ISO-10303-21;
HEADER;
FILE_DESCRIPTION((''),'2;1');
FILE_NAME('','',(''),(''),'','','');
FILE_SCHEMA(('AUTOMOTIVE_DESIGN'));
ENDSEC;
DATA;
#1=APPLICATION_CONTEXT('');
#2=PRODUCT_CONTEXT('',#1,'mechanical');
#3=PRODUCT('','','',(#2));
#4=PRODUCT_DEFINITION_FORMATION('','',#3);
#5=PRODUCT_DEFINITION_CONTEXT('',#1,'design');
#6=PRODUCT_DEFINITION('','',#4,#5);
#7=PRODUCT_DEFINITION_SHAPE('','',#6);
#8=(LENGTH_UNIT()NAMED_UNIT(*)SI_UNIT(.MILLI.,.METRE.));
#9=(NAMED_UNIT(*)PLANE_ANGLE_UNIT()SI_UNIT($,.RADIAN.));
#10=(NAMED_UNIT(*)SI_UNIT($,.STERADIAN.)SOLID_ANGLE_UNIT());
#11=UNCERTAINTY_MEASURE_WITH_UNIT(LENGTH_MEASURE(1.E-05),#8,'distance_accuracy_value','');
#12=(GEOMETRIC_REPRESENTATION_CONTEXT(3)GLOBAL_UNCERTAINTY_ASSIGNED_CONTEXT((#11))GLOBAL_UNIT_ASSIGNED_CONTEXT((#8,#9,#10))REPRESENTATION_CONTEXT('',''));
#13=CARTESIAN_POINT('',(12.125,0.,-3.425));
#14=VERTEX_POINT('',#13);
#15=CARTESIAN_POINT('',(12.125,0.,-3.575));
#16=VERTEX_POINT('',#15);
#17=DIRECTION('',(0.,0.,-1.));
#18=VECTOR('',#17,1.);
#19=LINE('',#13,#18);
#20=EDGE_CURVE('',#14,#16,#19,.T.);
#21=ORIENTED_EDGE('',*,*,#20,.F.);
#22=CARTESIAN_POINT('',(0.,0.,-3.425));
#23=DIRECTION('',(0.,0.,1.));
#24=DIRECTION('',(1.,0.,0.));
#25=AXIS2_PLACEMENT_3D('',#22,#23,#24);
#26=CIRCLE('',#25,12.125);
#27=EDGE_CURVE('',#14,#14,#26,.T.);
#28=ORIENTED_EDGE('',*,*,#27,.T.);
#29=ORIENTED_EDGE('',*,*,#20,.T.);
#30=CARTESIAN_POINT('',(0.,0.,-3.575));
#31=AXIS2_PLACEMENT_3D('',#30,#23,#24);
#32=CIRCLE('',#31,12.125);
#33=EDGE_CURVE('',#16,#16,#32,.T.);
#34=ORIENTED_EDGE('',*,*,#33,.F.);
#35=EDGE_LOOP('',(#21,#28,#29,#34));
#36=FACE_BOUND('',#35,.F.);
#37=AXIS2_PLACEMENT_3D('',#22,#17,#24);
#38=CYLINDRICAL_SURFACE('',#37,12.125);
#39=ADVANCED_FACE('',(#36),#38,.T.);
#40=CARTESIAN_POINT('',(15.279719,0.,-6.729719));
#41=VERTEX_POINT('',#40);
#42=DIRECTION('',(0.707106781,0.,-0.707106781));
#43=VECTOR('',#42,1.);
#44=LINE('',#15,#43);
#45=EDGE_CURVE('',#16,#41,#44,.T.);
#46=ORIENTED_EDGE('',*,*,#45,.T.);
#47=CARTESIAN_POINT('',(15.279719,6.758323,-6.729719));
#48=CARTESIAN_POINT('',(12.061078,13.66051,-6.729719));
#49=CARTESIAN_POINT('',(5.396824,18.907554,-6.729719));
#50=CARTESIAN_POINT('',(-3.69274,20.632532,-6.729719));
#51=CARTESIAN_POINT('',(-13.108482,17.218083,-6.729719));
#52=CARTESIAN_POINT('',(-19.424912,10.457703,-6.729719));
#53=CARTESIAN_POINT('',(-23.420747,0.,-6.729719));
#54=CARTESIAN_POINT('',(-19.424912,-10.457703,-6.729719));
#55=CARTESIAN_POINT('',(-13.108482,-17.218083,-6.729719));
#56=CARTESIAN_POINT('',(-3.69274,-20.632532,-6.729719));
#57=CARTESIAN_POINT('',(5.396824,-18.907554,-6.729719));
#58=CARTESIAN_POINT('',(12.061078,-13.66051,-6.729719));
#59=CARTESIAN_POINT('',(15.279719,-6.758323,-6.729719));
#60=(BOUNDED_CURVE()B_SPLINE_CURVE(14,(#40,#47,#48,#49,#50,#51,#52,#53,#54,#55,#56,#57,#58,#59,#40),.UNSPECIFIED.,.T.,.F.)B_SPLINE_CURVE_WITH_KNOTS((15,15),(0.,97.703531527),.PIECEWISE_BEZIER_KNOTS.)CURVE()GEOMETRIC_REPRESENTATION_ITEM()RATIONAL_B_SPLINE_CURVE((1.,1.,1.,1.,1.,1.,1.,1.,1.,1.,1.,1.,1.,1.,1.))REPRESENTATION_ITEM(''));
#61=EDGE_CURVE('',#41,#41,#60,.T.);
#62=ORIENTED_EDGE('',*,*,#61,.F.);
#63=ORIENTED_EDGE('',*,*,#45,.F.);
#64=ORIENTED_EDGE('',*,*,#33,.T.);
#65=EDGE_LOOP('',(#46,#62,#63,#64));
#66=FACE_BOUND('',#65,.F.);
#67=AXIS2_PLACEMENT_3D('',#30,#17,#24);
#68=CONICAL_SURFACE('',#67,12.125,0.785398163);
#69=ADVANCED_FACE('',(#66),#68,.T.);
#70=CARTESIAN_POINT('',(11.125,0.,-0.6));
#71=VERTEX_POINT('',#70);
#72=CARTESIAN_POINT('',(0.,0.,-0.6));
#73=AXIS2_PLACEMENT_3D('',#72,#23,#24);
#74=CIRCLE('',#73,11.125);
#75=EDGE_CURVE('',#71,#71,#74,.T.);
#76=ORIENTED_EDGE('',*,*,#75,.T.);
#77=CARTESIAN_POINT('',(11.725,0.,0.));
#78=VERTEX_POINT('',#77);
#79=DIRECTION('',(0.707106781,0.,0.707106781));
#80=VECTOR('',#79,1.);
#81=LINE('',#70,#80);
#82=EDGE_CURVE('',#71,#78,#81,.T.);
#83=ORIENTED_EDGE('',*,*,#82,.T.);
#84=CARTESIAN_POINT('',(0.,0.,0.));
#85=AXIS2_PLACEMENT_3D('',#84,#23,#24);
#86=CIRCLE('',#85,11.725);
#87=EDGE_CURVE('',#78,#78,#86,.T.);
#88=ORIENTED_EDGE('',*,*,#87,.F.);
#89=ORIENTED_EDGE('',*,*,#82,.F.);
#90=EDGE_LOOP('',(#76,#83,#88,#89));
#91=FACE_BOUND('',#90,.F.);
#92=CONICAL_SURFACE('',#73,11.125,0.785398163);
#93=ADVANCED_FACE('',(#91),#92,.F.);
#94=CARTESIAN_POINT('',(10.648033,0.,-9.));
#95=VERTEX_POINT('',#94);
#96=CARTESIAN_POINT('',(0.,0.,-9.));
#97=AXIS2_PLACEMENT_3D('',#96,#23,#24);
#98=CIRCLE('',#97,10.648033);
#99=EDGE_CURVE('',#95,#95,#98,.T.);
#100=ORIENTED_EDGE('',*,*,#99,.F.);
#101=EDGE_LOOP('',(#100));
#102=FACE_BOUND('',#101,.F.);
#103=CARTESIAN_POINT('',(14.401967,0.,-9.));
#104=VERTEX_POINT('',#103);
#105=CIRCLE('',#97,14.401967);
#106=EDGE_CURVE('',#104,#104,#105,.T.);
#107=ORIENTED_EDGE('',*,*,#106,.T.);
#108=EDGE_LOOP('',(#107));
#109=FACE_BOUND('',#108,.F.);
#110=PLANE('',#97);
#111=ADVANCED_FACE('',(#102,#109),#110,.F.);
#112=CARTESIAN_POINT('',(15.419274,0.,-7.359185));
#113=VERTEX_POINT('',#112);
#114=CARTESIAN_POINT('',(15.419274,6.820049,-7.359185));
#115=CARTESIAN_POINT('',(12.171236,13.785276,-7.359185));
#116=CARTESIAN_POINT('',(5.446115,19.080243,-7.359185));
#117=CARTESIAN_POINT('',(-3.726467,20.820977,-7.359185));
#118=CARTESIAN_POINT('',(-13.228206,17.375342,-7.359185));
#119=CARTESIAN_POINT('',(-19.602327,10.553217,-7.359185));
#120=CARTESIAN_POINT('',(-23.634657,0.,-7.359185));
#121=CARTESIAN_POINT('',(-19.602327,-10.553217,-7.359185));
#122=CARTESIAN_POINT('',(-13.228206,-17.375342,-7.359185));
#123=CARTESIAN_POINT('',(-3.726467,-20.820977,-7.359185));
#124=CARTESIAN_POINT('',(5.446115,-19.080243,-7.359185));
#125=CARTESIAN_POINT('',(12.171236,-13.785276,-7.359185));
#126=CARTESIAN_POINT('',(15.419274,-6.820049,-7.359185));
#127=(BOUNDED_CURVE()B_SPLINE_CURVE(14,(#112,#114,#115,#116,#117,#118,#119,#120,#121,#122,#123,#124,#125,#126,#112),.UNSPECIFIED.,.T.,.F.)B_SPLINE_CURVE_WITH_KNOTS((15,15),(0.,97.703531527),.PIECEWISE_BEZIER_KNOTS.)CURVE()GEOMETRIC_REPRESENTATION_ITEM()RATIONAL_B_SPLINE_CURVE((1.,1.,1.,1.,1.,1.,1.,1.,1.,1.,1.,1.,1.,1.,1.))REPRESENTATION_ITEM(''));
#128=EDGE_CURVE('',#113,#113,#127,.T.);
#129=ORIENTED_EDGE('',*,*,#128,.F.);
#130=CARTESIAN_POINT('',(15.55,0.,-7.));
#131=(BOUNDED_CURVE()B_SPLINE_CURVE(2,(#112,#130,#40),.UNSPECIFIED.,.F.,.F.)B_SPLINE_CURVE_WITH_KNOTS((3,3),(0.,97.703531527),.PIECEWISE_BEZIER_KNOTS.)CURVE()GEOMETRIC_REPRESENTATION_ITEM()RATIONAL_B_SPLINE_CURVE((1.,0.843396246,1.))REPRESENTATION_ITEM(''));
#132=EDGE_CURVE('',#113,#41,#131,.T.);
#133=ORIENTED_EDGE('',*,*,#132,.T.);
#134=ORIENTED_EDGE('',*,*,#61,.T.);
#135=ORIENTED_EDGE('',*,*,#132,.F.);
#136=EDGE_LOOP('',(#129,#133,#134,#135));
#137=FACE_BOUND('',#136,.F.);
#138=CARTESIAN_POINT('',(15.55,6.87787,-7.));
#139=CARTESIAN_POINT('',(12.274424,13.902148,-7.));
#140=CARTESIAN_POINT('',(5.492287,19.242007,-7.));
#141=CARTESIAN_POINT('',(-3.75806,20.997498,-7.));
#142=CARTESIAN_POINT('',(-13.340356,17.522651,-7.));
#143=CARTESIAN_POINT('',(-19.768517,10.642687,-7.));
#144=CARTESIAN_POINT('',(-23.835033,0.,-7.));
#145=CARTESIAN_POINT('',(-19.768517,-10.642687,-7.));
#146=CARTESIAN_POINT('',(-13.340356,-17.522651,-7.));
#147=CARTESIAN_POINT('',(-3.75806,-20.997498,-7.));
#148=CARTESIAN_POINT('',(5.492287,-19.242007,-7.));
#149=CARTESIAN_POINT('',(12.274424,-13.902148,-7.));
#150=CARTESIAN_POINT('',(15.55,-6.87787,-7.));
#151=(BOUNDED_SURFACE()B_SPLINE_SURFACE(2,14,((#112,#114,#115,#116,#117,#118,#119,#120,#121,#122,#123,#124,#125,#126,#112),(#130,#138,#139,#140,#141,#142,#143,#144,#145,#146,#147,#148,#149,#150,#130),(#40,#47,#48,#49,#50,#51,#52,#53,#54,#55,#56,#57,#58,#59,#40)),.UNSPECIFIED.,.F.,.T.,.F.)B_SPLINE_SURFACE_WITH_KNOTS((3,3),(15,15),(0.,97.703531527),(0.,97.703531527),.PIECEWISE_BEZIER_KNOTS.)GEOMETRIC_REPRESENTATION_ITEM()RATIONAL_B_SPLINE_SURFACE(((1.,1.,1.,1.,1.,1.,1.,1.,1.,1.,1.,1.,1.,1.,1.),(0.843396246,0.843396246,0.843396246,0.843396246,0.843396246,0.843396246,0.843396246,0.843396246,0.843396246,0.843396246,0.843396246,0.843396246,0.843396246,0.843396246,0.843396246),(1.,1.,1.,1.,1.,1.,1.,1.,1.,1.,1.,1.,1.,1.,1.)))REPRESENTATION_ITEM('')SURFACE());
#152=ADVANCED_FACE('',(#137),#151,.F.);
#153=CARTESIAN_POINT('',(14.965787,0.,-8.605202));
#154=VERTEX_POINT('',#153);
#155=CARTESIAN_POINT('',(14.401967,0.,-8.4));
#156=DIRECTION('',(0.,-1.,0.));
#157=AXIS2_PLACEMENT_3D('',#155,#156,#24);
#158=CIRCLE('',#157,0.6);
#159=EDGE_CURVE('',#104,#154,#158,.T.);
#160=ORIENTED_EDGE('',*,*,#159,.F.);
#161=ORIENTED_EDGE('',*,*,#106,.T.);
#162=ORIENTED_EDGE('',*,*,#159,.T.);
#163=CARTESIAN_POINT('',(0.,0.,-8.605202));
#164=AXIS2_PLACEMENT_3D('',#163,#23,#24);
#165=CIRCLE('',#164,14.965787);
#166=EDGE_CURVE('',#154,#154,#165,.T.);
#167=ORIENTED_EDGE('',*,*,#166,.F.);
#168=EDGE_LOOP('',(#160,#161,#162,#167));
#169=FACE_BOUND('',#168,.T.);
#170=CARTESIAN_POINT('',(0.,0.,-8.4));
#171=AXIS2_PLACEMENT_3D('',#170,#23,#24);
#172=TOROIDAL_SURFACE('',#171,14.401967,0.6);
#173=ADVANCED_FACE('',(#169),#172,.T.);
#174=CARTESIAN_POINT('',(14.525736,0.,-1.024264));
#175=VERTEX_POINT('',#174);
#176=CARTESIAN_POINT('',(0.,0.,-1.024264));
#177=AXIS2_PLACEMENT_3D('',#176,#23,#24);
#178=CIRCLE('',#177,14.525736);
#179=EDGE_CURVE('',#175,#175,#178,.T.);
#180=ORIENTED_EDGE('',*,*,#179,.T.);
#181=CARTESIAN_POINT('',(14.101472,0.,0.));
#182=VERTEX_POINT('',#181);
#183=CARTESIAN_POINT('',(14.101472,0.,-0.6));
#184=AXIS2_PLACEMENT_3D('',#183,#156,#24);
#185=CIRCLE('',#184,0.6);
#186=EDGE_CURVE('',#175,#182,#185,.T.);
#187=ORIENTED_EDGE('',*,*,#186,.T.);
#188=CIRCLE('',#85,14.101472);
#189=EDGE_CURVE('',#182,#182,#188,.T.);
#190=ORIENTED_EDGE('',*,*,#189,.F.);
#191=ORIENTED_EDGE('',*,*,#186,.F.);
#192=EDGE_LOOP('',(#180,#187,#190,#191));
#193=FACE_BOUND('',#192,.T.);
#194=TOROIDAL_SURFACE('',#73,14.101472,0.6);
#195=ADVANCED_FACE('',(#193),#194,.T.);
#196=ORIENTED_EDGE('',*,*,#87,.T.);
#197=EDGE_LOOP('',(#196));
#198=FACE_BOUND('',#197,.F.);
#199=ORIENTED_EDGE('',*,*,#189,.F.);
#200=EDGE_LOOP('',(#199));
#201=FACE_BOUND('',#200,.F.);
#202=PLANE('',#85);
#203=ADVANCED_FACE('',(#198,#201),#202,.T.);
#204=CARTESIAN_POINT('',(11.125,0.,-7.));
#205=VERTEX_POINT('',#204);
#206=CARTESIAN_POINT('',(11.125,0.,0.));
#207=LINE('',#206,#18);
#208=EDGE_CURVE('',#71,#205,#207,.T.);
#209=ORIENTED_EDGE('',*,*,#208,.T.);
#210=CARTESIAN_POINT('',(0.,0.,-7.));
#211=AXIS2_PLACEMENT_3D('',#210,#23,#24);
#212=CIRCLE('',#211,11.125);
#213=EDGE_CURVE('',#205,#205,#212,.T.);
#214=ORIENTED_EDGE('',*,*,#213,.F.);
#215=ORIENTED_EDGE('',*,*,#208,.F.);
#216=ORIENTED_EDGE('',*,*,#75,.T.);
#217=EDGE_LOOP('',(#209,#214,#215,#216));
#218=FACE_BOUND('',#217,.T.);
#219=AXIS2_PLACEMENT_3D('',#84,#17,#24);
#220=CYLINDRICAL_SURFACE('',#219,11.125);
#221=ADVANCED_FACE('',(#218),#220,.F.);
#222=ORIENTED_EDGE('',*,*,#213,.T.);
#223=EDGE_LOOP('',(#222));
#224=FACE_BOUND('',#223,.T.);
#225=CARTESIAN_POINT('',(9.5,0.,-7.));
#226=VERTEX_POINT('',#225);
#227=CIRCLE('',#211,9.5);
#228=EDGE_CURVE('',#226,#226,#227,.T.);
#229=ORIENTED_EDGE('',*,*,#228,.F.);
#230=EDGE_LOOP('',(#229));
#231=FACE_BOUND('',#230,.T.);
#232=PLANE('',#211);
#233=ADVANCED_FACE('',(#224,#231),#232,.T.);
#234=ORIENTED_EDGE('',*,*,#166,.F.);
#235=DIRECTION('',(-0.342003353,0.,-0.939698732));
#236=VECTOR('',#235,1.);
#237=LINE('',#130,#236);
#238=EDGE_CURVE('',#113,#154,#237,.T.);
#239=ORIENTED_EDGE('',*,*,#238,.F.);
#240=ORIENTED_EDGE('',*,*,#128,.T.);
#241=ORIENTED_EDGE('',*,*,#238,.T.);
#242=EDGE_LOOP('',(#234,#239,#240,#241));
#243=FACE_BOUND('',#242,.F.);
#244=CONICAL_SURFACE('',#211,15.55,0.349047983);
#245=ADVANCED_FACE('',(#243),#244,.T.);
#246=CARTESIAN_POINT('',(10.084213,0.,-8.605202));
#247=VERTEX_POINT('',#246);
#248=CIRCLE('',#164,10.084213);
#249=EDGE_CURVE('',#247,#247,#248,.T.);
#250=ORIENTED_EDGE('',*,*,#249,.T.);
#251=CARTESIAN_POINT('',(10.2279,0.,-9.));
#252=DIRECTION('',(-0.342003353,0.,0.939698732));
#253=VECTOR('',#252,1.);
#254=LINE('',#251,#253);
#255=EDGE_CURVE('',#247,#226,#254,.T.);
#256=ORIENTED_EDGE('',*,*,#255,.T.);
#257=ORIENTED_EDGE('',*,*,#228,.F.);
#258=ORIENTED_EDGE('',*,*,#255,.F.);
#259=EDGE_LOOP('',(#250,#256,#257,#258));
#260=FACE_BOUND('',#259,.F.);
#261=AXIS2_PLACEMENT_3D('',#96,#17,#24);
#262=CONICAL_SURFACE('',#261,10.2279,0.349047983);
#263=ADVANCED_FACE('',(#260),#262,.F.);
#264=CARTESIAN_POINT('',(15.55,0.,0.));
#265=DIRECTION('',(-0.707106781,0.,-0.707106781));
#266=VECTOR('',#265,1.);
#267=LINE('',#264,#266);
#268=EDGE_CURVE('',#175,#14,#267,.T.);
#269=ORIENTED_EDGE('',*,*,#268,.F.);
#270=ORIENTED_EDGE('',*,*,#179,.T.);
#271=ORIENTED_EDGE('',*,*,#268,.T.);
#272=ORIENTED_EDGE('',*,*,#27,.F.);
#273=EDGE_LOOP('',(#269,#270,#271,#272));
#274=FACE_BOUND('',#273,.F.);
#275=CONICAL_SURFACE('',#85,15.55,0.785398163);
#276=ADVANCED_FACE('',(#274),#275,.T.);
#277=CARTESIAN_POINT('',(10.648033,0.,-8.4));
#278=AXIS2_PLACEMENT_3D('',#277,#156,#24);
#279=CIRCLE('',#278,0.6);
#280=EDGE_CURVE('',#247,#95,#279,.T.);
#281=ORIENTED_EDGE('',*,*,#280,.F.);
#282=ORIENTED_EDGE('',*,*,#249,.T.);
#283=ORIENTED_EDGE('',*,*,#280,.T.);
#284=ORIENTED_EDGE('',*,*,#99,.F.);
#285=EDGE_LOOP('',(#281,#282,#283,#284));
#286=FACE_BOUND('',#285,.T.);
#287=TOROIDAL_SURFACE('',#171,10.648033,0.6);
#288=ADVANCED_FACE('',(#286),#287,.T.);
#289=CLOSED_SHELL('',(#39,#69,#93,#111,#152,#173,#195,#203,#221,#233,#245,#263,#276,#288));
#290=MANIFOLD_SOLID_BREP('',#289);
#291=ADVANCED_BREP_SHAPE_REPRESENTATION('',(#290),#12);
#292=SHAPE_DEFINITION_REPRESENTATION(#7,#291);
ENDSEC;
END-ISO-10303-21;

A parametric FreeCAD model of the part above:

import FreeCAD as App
import Part
import Sketcher
from FreeCAD import Vector
Q = App.Units.Quantity


def edges_at(feature, points):
    """Names of the edges that pass closest to the given points."""
    edges = feature.Shape.Edges
    near = lambda p: min(range(len(edges)), key=lambda i: edges[i].distToShape(Part.Vertex(*p))[0])
    return sorted({f"Edge{near(p) + 1}" for p in points})

doc = App.newDocument("Part")
body = doc.addObject("PartDesign::Body", "Body")

# Sketch on XZ plane
sketch1 = body.newObject("Sketcher::SketchObject", "Sketch")
sketch1.AttachmentSupport = (doc.getObject("XZ_Plane"), [""])
sketch1.MapMode = "FlatFace"
sketch1.addGeometry([
    Part.LineSegment(Vector(9.5, -7, 0), Vector(11.12, -7, 0)),  # 0
    Part.LineSegment(Vector(11.12, -7, 0), Vector(11.12, 0, 0)),  # 1
    Part.LineSegment(Vector(11.12, 0, 0), Vector(15.55, 0, 0)),  # 2
    Part.LineSegment(Vector(15.55, 0, 0), Vector(12.12, -3.42, 0)),  # 3
    Part.LineSegment(Vector(12.12, -3.42, 0), Vector(12.12, -3.58, 0)),  # 4
    Part.LineSegment(Vector(12.12, -3.58, 0), Vector(15.55, -7, 0)),  # 5
    Part.LineSegment(Vector(15.55, -7, 0), Vector(14.82, -9, 0)),  # 6
    Part.LineSegment(Vector(14.82, -9, 0), Vector(10.23, -9, 0)),  # 7
    Part.LineSegment(Vector(10.23, -9, 0), Vector(9.5, -7, 0)),  # 8
], False)
sketch1.addConstraint([
    Sketcher.Constraint("Coincident", 0, 2, 1, 1),
    Sketcher.Constraint("Coincident", 1, 2, 2, 1),
    Sketcher.Constraint("Coincident", 2, 2, 3, 1),
    Sketcher.Constraint("Coincident", 3, 2, 4, 1),
    Sketcher.Constraint("Coincident", 4, 2, 5, 1),
    Sketcher.Constraint("Coincident", 5, 2, 6, 1),
    Sketcher.Constraint("Coincident", 6, 2, 7, 1),
    Sketcher.Constraint("Coincident", 7, 2, 8, 1),
    Sketcher.Constraint("Coincident", 8, 2, 0, 1),
    Sketcher.Constraint("Horizontal", 0),
    Sketcher.Constraint("Vertical", 1),
    Sketcher.Constraint("Horizontal", 2),
    Sketcher.Constraint("Vertical", 4),
    Sketcher.Constraint("Horizontal", 7),
    Sketcher.Constraint("PointOnObject", 1, 2, -1),
    Sketcher.Constraint("Perpendicular", 3, 5),
    Sketcher.Constraint("Horizontal", 0, 2, 5, 2),
    Sketcher.Constraint("Vertical", 2, 2, 5, 2),
    Sketcher.Constraint("Equal", 3, 5),
    Sketcher.Constraint("Equal", 6, 8),
    Sketcher.Constraint("DistanceY", 1, 1, 1, 2, 7.0),
    Sketcher.Constraint("DistanceX", 1, 2, 3, 2, 1.0),
    Sketcher.Constraint("DistanceY", 6, 2, 5, 2, 2.0),
    Sketcher.Constraint("Angle", 6, Q("-109.999 deg")),
    Sketcher.Constraint("DistanceY", 4, 2, 4, 1, 0.15),
    Sketcher.Constraint("DistanceX", -1, 1, 8, 2, 9.5),
    Sketcher.Constraint("DistanceX", 0, 1, 0, 2, 1.625),
])
revolution = body.newObject("PartDesign::Revolution", "Revolution")
revolution.Profile = sketch1
revolution.ReferenceAxis = (sketch1, ["V_Axis"])
revolution.Angle = 360
doc.recompute()

fillet = body.newObject("PartDesign::Fillet", "Fillet")
fillet.Base = (revolution, edges_at(revolution, [
    (-15.55, 0, 0),
    (-15.55, 0, -7),
    (-14.822, 0, -9),
    (-10.228, 0, -9),
]))
fillet.Radius = 0.6
doc.recompute()

chamfer = body.newObject("PartDesign::Chamfer", "Chamfer")
chamfer.Base = (fillet, edges_at(fillet, [(-11.125, 0, 0)]))
chamfer.Size = 0.6

doc.recompute()
